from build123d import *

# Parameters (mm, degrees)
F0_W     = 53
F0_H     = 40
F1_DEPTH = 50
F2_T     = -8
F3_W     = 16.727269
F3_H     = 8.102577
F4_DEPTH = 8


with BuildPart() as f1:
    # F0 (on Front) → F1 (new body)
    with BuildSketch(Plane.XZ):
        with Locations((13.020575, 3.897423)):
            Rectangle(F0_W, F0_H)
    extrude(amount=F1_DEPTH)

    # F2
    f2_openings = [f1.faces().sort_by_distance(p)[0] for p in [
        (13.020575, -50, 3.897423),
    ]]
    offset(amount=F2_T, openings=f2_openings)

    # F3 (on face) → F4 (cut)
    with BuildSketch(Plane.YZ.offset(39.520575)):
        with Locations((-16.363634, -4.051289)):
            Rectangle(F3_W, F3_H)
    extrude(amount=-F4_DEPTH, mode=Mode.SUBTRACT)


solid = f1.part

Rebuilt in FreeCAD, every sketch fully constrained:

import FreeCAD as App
import Part
import Sketcher


def faces_at(feature, points):
    """Names of the faces that lie closest to the given points."""
    faces = feature.Shape.Faces
    near = lambda p: min(range(len(faces)), key=lambda i: faces[i].distToShape(Part.Vertex(*p))[0])
    return sorted({f"Face{near(p) + 1}" for p in points})


def add_polygon(sketch, points):
    """Adds a closed chain of lines whose ends are joined by coincident constraints."""
    first, n = sketch.GeometryCount, len(points)
    for a, b in zip(points, points[1:] + points[:1]):
        sketch.addGeometry(Part.LineSegment(App.Vector(*a, 0), App.Vector(*b, 0)), False)
    for i in range(n):
        sketch.addConstraint(Sketcher.Constraint("Coincident", first + i, 2, first + (i + 1) % n, 1))

doc = App.newDocument("Part")
params = doc.addObject("Spreadsheet::Sheet", "Params")
for row, (alias, value) in enumerate([
    ("sketch1_width", "53 mm"),
    ("sketch1_height", "40 mm"),
    ("pad1_length", "50 mm"),
    ("thickness_wall", "8 mm"),
    ("pocket1_length", "8 mm"),
], start=1):
    params.set(f"A{row}", alias)
    params.set(f"B{row}", "=" + value)
    params.setAlias(f"B{row}", alias)

body = doc.addObject("PartDesign::Body", "Body")

# Sketch on XZ plane
sketch1 = body.newObject("Sketcher::SketchObject", "Sketch")
sketch1.AttachmentSupport = (doc.getObject("XZ_Plane"), [""])
sketch1.MapMode = "FlatFace"
add_polygon(sketch1, [(-13, 24), (-13, -16), (40, -16), (40, 24)])  # lines 0-3
sketch1.addConstraint(Sketcher.Constraint("Vertical", 0))
sketch1.addConstraint(Sketcher.Constraint("Horizontal", 1))
sketch1.addConstraint(Sketcher.Constraint("Vertical", 2))
sketch1.addConstraint(Sketcher.Constraint("Horizontal", 3))
sketch1.addConstraint(Sketcher.Constraint("DistanceX", 1, 1, 1, 2, 53.0))
sketch1.addConstraint(Sketcher.Constraint("DistanceY", 0, 2, 0, 1, 40.0))
sketch1.addConstraint(Sketcher.Constraint("DistanceX", 0, 2, -1, 1, 13.479425))
sketch1.addConstraint(Sketcher.Constraint("DistanceY", 0, 2, -1, 1, 16.102577))
sketch1.setExpression("Constraints[8]", "Params.sketch1_width")
sketch1.setExpression("Constraints[9]", "Params.sketch1_height")
pad1 = body.newObject("PartDesign::Pad", "Pad")
pad1.Profile = sketch1
pad1.setExpression("Length", "Params.pad1_length")
doc.recompute()

thickness = body.newObject("PartDesign::Thickness", "Thickness")
thickness.Base = (pad1, faces_at(pad1, [(13.021, -50, 3.897)]))
thickness.setExpression("Value", "Params.thickness_wall")
thickness.Reversed = True
thickness.Join = "Arc"

# Sketch on YZ plane
sketch2 = body.newObject("Sketcher::SketchObject", "Sketch001")
sketch2.AttachmentSupport = (doc.getObject("YZ_Plane"), [""])
sketch2.MapMode = "FlatFace"
sketch2.AttachmentOffset = App.Placement(App.Vector(0, 0, 39.520575), App.Rotation())
add_polygon(sketch2, [(-25, 0), (-25, -8), (-8, -8), (-8, 0)])  # lines 0-3
sketch2.addConstraint(Sketcher.Constraint("Vertical", 0))
sketch2.addConstraint(Sketcher.Constraint("Horizontal", 1))
sketch2.addConstraint(Sketcher.Constraint("Vertical", 2))
sketch2.addConstraint(Sketcher.Constraint("Horizontal", 3))
sketch2.addConstraint(Sketcher.Constraint("PointOnObject", 2, 2, -1))
sketch2.addConstraint(Sketcher.Constraint("DistanceX", 1, 2, -1, 1, 8.0))
sketch2.addConstraint(Sketcher.Constraint("DistanceX", 1, 1, 1, 2, 16.727269))
sketch2.addConstraint(Sketcher.Constraint("DistanceY", 0, 2, 0, 1, 8.102577))
pocket1 = body.newObject("PartDesign::Pocket", "Pocket")
pocket1.Profile = sketch2
pocket1.setExpression("Length", "Params.pocket1_length")

doc.recompute()
